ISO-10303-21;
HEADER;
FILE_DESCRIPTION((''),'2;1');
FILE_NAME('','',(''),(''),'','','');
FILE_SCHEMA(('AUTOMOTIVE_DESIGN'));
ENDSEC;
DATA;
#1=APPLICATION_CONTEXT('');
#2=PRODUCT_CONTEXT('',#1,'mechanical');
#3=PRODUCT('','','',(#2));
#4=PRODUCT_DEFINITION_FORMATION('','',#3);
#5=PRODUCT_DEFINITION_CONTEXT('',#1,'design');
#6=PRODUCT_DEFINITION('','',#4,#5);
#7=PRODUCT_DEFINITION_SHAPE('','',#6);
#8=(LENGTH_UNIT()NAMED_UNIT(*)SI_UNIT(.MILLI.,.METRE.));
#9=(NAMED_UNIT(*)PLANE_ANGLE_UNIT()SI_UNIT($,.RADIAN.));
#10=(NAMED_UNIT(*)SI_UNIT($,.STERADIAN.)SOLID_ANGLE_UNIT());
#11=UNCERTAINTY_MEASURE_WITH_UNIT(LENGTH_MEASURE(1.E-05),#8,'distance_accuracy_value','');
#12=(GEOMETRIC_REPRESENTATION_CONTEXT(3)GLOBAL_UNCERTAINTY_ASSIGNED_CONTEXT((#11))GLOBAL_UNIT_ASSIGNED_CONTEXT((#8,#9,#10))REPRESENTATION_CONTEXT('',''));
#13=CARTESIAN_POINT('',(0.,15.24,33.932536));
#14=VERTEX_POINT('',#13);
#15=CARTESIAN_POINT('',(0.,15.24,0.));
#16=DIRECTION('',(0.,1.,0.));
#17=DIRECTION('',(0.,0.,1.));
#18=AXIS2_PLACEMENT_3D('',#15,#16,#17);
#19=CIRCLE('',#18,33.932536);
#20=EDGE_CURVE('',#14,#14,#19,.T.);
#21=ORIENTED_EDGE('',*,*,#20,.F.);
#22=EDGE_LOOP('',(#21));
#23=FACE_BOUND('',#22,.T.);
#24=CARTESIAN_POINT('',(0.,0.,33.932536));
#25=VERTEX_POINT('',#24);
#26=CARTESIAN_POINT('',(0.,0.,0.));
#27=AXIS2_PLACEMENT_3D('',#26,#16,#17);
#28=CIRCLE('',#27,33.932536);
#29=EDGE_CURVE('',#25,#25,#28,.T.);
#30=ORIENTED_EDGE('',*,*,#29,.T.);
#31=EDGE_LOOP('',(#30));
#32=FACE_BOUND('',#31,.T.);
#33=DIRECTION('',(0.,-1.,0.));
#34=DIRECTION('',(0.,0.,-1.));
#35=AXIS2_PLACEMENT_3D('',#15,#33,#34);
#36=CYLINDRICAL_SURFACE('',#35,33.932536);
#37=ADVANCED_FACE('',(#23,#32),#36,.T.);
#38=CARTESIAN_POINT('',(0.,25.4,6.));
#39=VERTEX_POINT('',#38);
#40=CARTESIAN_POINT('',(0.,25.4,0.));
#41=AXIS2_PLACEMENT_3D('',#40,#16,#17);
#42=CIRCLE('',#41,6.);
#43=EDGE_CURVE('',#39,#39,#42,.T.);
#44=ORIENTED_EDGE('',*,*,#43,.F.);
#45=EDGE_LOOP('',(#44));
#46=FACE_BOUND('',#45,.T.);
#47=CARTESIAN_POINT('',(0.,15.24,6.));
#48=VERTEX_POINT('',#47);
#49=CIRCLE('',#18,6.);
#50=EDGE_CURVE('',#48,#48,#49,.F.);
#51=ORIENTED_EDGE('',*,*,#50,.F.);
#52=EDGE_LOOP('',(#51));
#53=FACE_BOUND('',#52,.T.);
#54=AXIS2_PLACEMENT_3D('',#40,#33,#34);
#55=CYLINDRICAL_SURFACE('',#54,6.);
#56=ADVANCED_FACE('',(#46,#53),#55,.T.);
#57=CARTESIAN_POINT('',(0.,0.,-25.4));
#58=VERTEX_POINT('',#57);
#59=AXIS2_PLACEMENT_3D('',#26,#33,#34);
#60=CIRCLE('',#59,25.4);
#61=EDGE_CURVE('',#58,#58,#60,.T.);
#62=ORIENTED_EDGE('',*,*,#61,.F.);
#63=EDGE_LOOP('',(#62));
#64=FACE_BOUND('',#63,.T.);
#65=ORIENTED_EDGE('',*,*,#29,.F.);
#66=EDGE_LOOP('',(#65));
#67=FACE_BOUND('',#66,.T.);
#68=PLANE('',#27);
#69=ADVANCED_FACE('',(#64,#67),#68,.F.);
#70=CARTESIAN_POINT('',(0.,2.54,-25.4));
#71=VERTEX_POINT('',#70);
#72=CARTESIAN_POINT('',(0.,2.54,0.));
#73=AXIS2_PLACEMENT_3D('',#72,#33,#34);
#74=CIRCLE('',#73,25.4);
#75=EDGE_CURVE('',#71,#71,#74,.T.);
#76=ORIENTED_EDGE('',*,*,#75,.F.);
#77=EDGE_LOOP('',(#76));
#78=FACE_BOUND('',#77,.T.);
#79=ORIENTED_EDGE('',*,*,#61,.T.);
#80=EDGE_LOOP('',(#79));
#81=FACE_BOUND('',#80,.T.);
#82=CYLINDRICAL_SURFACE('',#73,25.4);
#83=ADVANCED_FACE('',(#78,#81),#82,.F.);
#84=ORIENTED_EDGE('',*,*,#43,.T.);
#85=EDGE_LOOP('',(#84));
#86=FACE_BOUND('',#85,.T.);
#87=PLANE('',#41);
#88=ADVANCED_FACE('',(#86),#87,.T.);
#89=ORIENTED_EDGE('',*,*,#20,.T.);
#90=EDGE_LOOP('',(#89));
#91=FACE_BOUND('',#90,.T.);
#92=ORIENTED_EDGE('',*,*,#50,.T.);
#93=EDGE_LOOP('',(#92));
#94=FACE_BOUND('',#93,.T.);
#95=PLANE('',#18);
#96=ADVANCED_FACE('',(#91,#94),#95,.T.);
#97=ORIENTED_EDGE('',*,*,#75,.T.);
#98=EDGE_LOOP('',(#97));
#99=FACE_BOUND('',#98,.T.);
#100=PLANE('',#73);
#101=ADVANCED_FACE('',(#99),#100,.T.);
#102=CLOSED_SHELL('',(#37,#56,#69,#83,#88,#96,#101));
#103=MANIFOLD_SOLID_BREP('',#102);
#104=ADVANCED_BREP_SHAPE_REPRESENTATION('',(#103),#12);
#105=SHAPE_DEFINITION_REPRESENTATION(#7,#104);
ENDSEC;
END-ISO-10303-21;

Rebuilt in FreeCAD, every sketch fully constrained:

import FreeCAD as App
import Part
import Sketcher
Q = App.Units.Quantity

doc = App.newDocument("Part")
body = doc.addObject("PartDesign::Body", "Body")

sketch1 = doc.addObject("Sketcher::SketchObject", "Sketch")
body.addObject(sketch1)
sketch1.AttachmentSupport = (doc.XZ_Plane, [""])
sketch1.MapMode = "FlatFace"
sketch1.addGeometry(Part.Circle(App.Vector(0, 0, 0), App.Vector(0, 0, 1), 34), False)
sketch1.addConstraint(Sketcher.Constraint("Coincident", 0, 3, -1, 1))
sketch1.addConstraint(Sketcher.Constraint("Diameter", 0, 67.865071))
pad1 = doc.addObject("PartDesign::Pad", "Pad")
body.addObject(pad1)
pad1.Profile = sketch1
pad1.Length = Q("0.6 in")
pad1.Reversed = True

sketch2 = doc.addObject("Sketcher::SketchObject", "Sketch001")
body.addObject(sketch2)
sketch2.AttachmentSupport = (doc.XZ_Plane, [""])
sketch2.MapMode = "FlatFace"
sketch2.addGeometry(Part.Circle(App.Vector(0, 0, 0), App.Vector(0, 0, 1), 6), False)
sketch2.addConstraint(Sketcher.Constraint("Coincident", 0, 3, -1, 1))
sketch2.addConstraint(Sketcher.Constraint("Diameter", 0, 12.0))
pad2 = doc.addObject("PartDesign::Pad", "Pad001")
body.addObject(pad2)
pad2.Profile = sketch2
pad2.Length = Q("1 in")
pad2.Reversed = True

sketch3 = doc.addObject("Sketcher::SketchObject", "Sketch002")
body.addObject(sketch3)
sketch3.AttachmentSupport = (doc.XZ_Plane, [""])
sketch3.MapMode = "FlatFace"
sketch3.addGeometry(Part.Circle(App.Vector(0, 0, 0), App.Vector(0, 0, 1), 25), False)
sketch3.addConstraint(Sketcher.Constraint("Coincident", 0, 3, -1, 1))
sketch3.addConstraint(Sketcher.Constraint("Diameter", 0, Q("2 in")))
pocket1 = doc.addObject("PartDesign::Pocket", "Pocket")
body.addObject(pocket1)
pocket1.Profile = sketch3
pocket1.Length = Q("0.1 in")

doc.recompute()
